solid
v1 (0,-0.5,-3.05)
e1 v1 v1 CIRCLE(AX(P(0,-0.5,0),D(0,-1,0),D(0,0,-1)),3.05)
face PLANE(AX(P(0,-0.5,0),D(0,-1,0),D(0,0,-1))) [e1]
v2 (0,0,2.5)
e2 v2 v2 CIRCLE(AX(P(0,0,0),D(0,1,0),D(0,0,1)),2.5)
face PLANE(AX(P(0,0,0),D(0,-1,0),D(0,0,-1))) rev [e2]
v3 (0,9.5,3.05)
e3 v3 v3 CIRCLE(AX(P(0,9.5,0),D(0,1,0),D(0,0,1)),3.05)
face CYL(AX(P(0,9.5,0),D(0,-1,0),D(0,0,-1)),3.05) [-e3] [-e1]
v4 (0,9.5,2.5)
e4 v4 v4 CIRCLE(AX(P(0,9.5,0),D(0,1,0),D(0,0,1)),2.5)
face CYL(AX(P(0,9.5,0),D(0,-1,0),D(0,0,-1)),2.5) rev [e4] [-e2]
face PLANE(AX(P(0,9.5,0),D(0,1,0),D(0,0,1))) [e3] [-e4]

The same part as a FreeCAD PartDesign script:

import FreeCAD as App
import Part
import Sketcher
Q = App.Units.Quantity

doc = App.newDocument("Part")
body = doc.addObject("PartDesign::Body", "Body")

# Sketch on XZ plane
sketch1 = body.newObject("Sketcher::SketchObject", "Sketch")
sketch1.AttachmentSupport = (doc.getObject("XZ_Plane"), [""])
sketch1.MapMode = "FlatFace"
sketch1.addGeometry(Part.Circle(App.Vector(0, 0, 0), App.Vector(0, 0, 1), 3), False)
sketch1.addGeometry(Part.Circle(App.Vector(0, 0, 0), App.Vector(0, 0, 1), 2.5), False)
sketch1.addConstraint(Sketcher.Constraint("Coincident", 0, 3, -1, 1))
sketch1.addConstraint(Sketcher.Constraint("Coincident", 1, 3, -1, 1))
sketch1.addConstraint(Sketcher.Constraint("Diameter", 1, Q("5 mm")))
sketch1.addConstraint(Sketcher.Constraint("Diameter", 0, Q("6.1 mm")))
pad1 = body.newObject("PartDesign::Pad", "Pad")
pad1.Profile = sketch1
pad1.Length = 9.5
pad1.Reversed = True

# Sketch on XZ plane
sketch2 = body.newObject("Sketcher::SketchObject", "Sketch001")
sketch2.AttachmentSupport = (doc.getObject("XZ_Plane"), [""])
sketch2.MapMode = "FlatFace"
sketch2.AttachmentOffset = App.Placement(App.Vector(0, 0, 0.5), App.Rotation())
sketch2.addGeometry(Part.Circle(App.Vector(0, 0, 0), App.Vector(0, 0, 1), 3), False)
sketch2.addConstraint(Sketcher.Constraint("Coincident", 0, 3, -1, 1))
sketch2.addConstraint(Sketcher.Constraint("Diameter", 0, Q("6.1 mm")))
pad2 = body.newObject("PartDesign::Pad", "Pad001")
pad2.Profile = sketch2
pad2.Length = 0.5
pad2.Reversed = True

doc.recompute()
